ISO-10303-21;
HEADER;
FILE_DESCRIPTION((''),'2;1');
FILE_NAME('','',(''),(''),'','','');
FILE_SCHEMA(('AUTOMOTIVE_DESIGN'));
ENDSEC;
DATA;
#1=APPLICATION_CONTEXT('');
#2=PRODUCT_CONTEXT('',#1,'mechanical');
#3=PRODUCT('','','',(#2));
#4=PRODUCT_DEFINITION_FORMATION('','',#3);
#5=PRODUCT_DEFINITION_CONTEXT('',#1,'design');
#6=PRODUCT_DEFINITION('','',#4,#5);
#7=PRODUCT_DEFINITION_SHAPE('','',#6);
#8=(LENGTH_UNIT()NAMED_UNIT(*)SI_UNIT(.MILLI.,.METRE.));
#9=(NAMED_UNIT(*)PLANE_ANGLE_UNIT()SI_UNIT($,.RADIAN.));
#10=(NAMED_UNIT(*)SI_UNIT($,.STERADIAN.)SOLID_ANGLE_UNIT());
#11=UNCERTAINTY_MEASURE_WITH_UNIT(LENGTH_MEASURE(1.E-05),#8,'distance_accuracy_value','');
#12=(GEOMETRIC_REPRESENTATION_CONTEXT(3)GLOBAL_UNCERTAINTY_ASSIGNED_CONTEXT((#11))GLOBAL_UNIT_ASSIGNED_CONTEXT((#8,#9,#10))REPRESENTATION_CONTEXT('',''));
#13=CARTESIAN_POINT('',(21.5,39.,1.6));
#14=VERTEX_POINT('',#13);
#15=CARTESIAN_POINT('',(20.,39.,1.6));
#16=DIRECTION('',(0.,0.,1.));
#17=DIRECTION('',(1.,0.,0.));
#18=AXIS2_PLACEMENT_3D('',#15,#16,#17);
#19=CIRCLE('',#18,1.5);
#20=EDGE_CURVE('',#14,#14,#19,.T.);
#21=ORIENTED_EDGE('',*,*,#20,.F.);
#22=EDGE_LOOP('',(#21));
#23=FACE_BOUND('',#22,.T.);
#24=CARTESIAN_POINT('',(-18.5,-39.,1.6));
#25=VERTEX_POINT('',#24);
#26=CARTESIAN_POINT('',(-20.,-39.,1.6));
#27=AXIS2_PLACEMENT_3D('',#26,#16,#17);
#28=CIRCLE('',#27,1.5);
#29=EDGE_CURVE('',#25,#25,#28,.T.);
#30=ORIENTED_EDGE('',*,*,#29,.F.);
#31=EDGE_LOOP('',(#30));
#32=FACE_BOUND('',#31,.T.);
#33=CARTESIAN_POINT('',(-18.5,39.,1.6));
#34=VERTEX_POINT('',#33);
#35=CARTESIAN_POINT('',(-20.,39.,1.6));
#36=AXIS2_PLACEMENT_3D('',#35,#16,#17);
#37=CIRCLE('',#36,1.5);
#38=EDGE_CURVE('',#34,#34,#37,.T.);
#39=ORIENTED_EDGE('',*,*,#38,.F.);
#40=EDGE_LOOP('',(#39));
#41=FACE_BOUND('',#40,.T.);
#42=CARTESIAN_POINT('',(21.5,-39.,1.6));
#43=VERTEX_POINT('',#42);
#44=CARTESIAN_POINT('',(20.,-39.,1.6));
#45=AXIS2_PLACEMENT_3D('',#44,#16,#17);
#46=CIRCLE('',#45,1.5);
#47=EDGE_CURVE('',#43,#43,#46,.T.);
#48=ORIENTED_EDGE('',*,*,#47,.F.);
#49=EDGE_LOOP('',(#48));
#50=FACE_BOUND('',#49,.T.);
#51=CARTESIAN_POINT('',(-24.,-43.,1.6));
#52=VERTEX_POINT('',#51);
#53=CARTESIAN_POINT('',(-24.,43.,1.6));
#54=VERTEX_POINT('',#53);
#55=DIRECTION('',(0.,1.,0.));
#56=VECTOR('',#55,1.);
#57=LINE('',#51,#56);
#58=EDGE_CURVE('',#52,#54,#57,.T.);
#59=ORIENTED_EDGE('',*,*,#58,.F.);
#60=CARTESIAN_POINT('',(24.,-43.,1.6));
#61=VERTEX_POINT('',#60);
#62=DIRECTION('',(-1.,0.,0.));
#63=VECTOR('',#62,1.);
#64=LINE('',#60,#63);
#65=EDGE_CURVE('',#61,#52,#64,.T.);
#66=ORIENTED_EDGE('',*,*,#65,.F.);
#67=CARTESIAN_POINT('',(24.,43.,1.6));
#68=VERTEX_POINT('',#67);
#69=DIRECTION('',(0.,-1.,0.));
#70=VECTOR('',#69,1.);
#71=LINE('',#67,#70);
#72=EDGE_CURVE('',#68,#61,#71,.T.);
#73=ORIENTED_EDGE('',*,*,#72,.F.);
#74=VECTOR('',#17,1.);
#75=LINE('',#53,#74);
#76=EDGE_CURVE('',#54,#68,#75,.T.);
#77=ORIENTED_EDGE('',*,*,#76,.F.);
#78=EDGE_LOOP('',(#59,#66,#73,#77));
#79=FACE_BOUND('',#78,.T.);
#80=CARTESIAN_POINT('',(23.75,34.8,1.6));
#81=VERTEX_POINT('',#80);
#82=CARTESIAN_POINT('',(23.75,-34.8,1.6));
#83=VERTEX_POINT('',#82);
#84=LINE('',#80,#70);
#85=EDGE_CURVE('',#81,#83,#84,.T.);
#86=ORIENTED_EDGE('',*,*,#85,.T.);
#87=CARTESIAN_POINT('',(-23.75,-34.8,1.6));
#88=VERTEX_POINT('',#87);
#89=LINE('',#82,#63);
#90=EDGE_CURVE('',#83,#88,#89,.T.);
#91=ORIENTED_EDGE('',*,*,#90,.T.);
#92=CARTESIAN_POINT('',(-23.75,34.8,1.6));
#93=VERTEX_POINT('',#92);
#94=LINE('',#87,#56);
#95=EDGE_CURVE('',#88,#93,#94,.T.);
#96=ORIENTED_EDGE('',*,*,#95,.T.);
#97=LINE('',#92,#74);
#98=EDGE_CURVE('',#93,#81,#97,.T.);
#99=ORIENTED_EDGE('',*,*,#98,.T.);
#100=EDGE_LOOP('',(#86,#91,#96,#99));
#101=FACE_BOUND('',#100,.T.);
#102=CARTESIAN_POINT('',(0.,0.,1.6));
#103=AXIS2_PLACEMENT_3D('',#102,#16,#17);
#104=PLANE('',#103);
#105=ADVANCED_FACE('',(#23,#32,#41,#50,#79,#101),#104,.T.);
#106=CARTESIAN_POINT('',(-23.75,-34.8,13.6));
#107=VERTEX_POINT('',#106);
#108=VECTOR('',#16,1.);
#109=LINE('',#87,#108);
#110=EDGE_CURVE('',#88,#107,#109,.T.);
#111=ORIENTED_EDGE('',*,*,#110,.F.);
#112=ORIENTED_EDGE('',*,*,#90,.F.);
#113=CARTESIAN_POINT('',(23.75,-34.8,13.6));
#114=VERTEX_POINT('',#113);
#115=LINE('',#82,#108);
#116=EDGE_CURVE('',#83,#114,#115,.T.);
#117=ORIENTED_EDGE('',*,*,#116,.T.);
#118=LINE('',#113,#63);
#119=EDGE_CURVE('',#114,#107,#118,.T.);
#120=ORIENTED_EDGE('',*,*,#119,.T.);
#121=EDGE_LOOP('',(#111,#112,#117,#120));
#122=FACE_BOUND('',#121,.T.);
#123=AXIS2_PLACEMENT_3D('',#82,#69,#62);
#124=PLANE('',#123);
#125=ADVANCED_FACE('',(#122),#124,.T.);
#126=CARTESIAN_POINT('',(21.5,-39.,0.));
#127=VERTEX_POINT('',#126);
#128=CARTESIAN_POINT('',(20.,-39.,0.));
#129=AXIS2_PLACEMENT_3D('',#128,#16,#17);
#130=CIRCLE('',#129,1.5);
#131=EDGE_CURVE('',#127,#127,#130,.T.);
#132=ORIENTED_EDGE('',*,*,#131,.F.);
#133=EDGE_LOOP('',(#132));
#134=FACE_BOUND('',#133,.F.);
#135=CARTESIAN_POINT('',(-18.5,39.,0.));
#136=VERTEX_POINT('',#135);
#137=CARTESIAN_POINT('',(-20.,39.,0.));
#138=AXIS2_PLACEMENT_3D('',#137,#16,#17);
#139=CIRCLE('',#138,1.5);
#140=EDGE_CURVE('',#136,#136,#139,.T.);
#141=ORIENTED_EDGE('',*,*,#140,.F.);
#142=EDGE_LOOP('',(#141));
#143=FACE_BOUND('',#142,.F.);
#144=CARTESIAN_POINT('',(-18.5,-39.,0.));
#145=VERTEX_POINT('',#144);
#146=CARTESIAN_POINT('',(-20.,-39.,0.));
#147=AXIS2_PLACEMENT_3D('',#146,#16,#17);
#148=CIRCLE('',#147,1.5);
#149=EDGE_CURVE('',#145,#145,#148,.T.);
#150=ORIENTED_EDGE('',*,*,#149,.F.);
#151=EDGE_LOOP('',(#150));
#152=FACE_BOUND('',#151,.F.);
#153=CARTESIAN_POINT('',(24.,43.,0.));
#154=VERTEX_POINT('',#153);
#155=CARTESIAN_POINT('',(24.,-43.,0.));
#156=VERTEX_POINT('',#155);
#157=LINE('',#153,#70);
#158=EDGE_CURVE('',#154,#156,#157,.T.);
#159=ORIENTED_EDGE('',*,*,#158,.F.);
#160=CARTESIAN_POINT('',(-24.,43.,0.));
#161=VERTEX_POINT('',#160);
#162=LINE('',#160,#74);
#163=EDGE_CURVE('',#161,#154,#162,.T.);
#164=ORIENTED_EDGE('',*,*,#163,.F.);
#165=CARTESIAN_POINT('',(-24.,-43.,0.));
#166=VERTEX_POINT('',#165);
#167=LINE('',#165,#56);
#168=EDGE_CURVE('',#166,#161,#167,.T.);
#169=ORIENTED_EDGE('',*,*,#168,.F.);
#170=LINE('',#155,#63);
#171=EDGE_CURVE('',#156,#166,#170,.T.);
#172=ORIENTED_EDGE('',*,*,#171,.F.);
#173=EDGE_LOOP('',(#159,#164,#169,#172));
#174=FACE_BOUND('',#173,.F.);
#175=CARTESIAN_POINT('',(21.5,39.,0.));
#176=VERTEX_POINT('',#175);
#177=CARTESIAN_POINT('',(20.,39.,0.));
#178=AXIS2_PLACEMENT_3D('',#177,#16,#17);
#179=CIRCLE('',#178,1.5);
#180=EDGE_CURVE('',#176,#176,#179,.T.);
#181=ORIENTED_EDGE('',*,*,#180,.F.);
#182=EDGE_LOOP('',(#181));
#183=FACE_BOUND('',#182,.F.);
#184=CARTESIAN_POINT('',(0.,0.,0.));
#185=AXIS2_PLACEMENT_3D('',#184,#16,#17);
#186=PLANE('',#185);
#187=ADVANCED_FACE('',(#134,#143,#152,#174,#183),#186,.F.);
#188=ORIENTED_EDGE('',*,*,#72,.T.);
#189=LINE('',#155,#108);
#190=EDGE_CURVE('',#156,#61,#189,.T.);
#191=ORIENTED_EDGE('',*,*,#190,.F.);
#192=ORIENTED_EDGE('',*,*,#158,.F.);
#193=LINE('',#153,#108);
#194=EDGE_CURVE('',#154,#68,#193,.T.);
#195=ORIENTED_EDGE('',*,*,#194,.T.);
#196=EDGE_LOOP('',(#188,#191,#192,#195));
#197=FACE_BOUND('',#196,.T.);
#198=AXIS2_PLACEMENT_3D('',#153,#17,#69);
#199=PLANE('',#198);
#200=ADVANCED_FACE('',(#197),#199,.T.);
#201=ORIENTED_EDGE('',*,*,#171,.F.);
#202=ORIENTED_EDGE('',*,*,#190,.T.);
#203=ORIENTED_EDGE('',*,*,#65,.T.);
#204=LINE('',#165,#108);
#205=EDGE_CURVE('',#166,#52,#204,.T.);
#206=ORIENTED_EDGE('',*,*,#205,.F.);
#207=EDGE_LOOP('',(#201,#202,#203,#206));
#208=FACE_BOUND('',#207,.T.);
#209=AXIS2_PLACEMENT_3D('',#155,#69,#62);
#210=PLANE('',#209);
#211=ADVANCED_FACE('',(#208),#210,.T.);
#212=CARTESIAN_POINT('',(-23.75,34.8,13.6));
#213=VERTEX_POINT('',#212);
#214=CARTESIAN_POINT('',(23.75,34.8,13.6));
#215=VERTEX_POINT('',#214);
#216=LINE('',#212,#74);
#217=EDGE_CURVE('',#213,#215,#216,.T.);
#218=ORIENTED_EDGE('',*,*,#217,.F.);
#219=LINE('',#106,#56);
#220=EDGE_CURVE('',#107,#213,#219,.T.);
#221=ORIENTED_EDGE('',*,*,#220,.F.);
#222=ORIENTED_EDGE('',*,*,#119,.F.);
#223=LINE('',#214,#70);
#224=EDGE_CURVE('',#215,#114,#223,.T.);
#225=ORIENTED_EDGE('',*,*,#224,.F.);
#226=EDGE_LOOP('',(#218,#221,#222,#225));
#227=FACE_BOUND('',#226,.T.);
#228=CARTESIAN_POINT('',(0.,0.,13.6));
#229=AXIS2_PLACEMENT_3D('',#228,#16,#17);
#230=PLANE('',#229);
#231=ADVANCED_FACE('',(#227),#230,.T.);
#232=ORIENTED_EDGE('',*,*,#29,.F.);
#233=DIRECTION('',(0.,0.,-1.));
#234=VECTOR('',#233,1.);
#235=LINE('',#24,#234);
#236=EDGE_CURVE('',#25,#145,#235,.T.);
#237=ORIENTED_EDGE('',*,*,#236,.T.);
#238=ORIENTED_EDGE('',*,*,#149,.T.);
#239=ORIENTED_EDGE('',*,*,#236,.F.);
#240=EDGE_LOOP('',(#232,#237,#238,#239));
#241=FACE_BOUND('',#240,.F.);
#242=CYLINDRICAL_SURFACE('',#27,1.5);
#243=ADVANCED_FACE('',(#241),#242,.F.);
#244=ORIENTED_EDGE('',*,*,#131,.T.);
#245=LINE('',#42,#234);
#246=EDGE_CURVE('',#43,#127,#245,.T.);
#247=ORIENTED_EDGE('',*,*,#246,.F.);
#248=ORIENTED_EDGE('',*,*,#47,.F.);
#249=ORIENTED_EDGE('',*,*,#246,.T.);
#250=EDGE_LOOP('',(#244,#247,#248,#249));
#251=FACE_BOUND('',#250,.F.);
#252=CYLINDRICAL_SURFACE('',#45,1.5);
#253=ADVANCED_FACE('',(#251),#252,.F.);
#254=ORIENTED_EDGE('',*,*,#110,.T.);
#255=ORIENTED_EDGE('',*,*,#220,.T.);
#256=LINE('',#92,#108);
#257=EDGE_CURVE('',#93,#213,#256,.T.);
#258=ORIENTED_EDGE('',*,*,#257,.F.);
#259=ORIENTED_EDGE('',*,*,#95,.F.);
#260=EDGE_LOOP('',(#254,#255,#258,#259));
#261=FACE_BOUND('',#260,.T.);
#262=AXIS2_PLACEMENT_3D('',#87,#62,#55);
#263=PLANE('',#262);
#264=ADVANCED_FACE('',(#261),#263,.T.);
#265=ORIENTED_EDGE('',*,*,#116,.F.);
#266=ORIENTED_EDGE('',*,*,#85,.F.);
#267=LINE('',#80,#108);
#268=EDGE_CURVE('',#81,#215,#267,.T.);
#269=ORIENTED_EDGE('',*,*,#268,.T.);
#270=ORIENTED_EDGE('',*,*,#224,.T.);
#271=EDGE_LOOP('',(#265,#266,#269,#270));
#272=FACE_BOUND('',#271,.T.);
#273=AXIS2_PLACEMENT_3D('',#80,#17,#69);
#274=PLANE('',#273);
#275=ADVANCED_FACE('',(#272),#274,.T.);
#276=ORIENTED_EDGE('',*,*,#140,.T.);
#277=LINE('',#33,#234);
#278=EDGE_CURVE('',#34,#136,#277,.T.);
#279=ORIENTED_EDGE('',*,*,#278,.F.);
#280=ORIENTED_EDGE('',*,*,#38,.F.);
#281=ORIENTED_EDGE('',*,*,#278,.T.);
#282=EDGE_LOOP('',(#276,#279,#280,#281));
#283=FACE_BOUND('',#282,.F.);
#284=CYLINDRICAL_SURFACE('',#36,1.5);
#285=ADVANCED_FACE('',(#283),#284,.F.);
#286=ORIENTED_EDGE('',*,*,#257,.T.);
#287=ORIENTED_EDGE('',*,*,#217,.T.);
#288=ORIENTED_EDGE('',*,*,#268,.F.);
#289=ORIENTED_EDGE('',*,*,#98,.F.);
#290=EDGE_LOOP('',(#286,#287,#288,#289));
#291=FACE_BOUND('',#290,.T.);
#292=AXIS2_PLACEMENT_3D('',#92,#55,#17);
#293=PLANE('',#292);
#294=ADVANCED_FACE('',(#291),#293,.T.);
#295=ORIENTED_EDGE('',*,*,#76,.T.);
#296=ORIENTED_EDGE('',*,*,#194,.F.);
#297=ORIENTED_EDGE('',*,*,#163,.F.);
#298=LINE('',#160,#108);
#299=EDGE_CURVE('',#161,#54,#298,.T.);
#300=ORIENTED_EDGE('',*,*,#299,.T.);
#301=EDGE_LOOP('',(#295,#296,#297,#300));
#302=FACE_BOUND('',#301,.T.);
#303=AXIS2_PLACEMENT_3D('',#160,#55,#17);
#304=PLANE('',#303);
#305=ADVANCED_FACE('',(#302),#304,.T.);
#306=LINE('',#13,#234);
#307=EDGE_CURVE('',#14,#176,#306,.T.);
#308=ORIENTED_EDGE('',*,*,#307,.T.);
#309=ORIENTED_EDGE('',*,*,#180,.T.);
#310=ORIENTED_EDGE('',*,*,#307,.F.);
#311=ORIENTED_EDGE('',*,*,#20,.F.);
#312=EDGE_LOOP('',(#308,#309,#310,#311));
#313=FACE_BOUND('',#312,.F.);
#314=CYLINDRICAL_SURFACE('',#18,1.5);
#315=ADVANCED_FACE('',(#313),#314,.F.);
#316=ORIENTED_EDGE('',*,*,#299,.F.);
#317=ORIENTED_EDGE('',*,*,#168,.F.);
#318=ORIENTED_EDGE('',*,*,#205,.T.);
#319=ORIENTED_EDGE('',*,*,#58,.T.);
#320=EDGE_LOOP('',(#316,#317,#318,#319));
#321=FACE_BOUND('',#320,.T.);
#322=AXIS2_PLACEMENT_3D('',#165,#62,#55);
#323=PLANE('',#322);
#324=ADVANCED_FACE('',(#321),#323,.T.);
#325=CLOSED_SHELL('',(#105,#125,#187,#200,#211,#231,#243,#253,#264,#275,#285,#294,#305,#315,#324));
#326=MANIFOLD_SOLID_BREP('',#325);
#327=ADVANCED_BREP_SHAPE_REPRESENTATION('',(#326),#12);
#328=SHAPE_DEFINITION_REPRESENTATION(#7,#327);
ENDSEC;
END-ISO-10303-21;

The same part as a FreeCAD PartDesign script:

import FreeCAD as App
import Part
import Sketcher

V = App.Vector
Q = App.Units.Quantity

doc = App.newDocument("Part")
body = doc.addObject("PartDesign::Body", "Body")

# Sketch on XY plane
sketch1 = body.newObject("Sketcher::SketchObject", "Sketch")
sketch1.AttachmentSupport = (doc.getObject("XY_Plane"), [""])
sketch1.MapMode = "FlatFace"
sketch1.addGeometry(Part.LineSegment(V(24, 43, 0), V(-24, 43, 0)), False)
sketch1.addGeometry(Part.LineSegment(V(-24, 43, 0), V(-24, -43, 0)), False)
sketch1.addGeometry(Part.LineSegment(V(-24, -43, 0), V(24, -43, 0)), False)
sketch1.addGeometry(Part.LineSegment(V(24, -43, 0), V(24, 43, 0)), False)
sketch1.addConstraint(Sketcher.Constraint("Coincident", 0, 2, 1, 1))
sketch1.addConstraint(Sketcher.Constraint("Coincident", 1, 2, 2, 1))
sketch1.addConstraint(Sketcher.Constraint("Coincident", 2, 2, 3, 1))
sketch1.addConstraint(Sketcher.Constraint("Coincident", 3, 2, 0, 1))
sketch1.addConstraint(Sketcher.Constraint("Horizontal", 0))
sketch1.addConstraint(Sketcher.Constraint("Vertical", 1))
sketch1.addConstraint(Sketcher.Constraint("Horizontal", 2))
sketch1.addConstraint(Sketcher.Constraint("Vertical", 3))
sketch1.addConstraint(Sketcher.Constraint("Symmetric", 0, 2, 2, 2, -1, 1))
sketch1.addConstraint(Sketcher.Constraint("DistanceX", 0, 2, 0, 1, Q("48 mm")))
sketch1.addConstraint(Sketcher.Constraint("DistanceY", 1, 2, 1, 1, Q("86 mm")))
pad1 = body.newObject("PartDesign::Pad", "Pad")
pad1.Profile = sketch1
pad1.Length = 1.6

# Sketch on XY plane
sketch2 = body.newObject("Sketcher::SketchObject", "Sketch001")
sketch2.AttachmentSupport = (doc.getObject("XY_Plane"), [""])
sketch2.MapMode = "FlatFace"
sketch2.AttachmentOffset = App.Placement(V(0, 0, 1.6), App.Rotation())
sketch2.addGeometry(Part.LineSegment(V(23.75, 34.8, 0), V(-23.75, 34.8, 0)), False)
sketch2.addGeometry(Part.LineSegment(V(-23.75, 34.8, 0), V(-23.75, -34.8, 0)), False)
sketch2.addGeometry(Part.LineSegment(V(-23.75, -34.8, 0), V(23.75, -34.8, 0)), False)
sketch2.addGeometry(Part.LineSegment(V(23.75, -34.8, 0), V(23.75, 34.8, 0)), False)
sketch2.addConstraint(Sketcher.Constraint("Coincident", 0, 2, 1, 1))
sketch2.addConstraint(Sketcher.Constraint("Coincident", 1, 2, 2, 1))
sketch2.addConstraint(Sketcher.Constraint("Coincident", 2, 2, 3, 1))
sketch2.addConstraint(Sketcher.Constraint("Coincident", 3, 2, 0, 1))
sketch2.addConstraint(Sketcher.Constraint("Horizontal", 0))
sketch2.addConstraint(Sketcher.Constraint("Vertical", 1))
sketch2.addConstraint(Sketcher.Constraint("Horizontal", 2))
sketch2.addConstraint(Sketcher.Constraint("Vertical", 3))
sketch2.addConstraint(Sketcher.Constraint("Symmetric", 0, 2, 2, 2, -1, 1))
sketch2.addConstraint(Sketcher.Constraint("DistanceX", 0, 2, 0, 1, Q("47.5 mm")))
sketch2.addConstraint(Sketcher.Constraint("DistanceY", 1, 2, 1, 1, Q("69.6 mm")))
pad2 = body.newObject("PartDesign::Pad", "Pad001")
pad2.Profile = sketch2
pad2.Length = 12

# Sketch on XY plane
sketch3 = body.newObject("Sketcher::SketchObject", "Sketch002")
sketch3.AttachmentSupport = (doc.getObject("XY_Plane"), [""])
sketch3.MapMode = "FlatFace"
sketch3.AttachmentOffset = App.Placement(V(0, 0, 1.6), App.Rotation())
sketch3.addGeometry(Part.Circle(V(-20, -39, 0), V(0, 0, 1), 1.5), False)
sketch3.addGeometry(Part.Circle(V(20, -39, 0), V(0, 0, 1), 1.5), False)
sketch3.addGeometry(Part.Circle(V(-20, 39, 0), V(0, 0, 1), 1.5), False)
sketch3.addGeometry(Part.Circle(V(20, 39, 0), V(0, 0, 1), 1.5), False)
sketch3.addConstraint(Sketcher.Constraint("Equal", 0, 1))
sketch3.addConstraint(Sketcher.Constraint("Equal", 1, 2))
sketch3.addConstraint(Sketcher.Constraint("Equal", 2, 3))
sketch3.addConstraint(Sketcher.Constraint("Symmetric", 1, 3, 2, 3, -1, 1))
sketch3.addConstraint(Sketcher.Constraint("Symmetric", 0, 3, 3, 3, -1, 1))
sketch3.addConstraint(Sketcher.Constraint("Symmetric", 0, 3, 1, 3, -2))
sketch3.addConstraint(Sketcher.Constraint("Diameter", 0, Q("3 mm")))
sketch3.addConstraint(Sketcher.Constraint("DistanceX", 0, 3, -1, 1, Q("20 mm")))
sketch3.addConstraint(Sketcher.Constraint("DistanceY", 0, 3, -1, 1, Q("39 mm")))
pocket1 = body.newObject("PartDesign::Pocket", "Pocket")
pocket1.Profile = sketch3
pocket1.Length = 1.6

doc.recompute()
